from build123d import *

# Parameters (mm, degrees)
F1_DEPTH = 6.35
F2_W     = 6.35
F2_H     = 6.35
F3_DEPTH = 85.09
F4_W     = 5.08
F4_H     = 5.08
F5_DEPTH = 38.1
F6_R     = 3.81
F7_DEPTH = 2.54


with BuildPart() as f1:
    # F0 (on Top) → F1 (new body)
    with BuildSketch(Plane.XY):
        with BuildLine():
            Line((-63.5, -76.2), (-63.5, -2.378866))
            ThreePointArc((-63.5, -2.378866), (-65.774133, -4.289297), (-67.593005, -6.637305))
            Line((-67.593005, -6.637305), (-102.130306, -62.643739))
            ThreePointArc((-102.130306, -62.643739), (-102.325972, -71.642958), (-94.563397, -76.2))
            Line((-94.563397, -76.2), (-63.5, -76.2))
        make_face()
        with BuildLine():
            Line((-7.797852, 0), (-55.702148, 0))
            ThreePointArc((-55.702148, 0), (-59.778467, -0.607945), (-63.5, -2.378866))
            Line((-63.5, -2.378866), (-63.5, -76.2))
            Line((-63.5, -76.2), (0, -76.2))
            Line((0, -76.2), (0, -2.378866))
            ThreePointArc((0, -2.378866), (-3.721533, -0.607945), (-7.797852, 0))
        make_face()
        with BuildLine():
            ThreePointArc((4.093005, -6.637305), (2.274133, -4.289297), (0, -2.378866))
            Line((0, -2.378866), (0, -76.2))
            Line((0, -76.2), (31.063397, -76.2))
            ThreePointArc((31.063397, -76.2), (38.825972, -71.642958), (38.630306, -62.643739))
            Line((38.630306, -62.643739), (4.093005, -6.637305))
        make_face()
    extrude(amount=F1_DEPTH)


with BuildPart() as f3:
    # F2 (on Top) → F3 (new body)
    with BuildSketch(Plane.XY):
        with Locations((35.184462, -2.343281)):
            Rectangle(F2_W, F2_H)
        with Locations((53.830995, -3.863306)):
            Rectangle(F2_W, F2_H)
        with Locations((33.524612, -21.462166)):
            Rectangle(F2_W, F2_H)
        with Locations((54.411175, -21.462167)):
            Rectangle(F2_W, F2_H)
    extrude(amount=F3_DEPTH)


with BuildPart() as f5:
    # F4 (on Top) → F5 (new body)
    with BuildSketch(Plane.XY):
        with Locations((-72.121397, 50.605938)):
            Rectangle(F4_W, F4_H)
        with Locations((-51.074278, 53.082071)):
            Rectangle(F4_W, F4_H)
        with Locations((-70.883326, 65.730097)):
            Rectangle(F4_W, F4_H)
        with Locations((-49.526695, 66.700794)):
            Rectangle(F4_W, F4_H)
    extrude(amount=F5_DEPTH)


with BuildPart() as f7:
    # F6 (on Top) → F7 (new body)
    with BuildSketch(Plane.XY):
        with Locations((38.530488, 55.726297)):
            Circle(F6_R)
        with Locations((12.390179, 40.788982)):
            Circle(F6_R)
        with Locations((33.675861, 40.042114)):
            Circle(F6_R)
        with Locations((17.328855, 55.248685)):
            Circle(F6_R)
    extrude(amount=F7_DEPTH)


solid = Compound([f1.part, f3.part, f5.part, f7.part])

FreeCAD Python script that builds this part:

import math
import FreeCAD as App
import Part
import Sketcher
Q = App.Units.Quantity

doc = App.newDocument("Part")
body = doc.addObject("PartDesign::Body", "Body")

# Sketch on XY plane
sketch1 = body.newObject("Sketcher::SketchObject", "Sketch")
sketch1.AttachmentSupport = (doc.getObject("XY_Plane"), [""])
sketch1.MapMode = "FlatFace"
sketch1.addGeometry(Part.ArcOfCircle(Part.Circle(App.Vector(-56, -14, 0), App.Vector(0, 0, 1), 14), math.radians(124), math.radians(148)), False)
sketch1.addGeometry(Part.LineSegment(App.Vector(-68, -7, 0), App.Vector(-102, -63, 0)), False)
sketch1.addGeometry(Part.ArcOfCircle(Part.Circle(App.Vector(-95, -67, 0), App.Vector(0, 0, 1), 9), math.radians(148), math.radians(270)), False)
sketch1.addGeometry(Part.LineSegment(App.Vector(-95, -76, 0), App.Vector(31, -76, 0)), False)
sketch1.addGeometry(Part.ArcOfCircle(Part.Circle(App.Vector(31, -67, 0), App.Vector(0, 0, 1), 9), math.radians(-90), math.radians(32)), False)
sketch1.addGeometry(Part.LineSegment(App.Vector(39, -63, 0), App.Vector(4, -7, 0)), False)
sketch1.addGeometry(Part.ArcOfCircle(Part.Circle(App.Vector(-8, -14, 0), App.Vector(0, 0, 1), 14), math.radians(32), math.radians(56)), False)
sketch1.addGeometry(Part.ArcOfCircle(Part.Circle(App.Vector(-8, -14, 0), App.Vector(0, 0, 1), 14), math.radians(56), math.radians(90)), False)
sketch1.addGeometry(Part.LineSegment(App.Vector(-8, 0, 0), App.Vector(-56, 0, 0)), False)
sketch1.addGeometry(Part.ArcOfCircle(Part.Circle(App.Vector(-56, -14, 0), App.Vector(0, 0, 1), 14), math.radians(90), math.radians(124)), False)
sketch1.addConstraint(Sketcher.Constraint("Tangent", 0, 2, 1, 1))
sketch1.addConstraint(Sketcher.Constraint("Tangent", 1, 2, 2, 1))
sketch1.addConstraint(Sketcher.Constraint("Tangent", 2, 2, 3, 1))
sketch1.addConstraint(Sketcher.Constraint("Tangent", 3, 2, 4, 1))
sketch1.addConstraint(Sketcher.Constraint("Tangent", 4, 2, 5, 1))
sketch1.addConstraint(Sketcher.Constraint("Tangent", 5, 2, 6, 1))
sketch1.addConstraint(Sketcher.Constraint("Tangent", 6, 2, 7, 1))
sketch1.addConstraint(Sketcher.Constraint("Tangent", 7, 2, 8, 1))
sketch1.addConstraint(Sketcher.Constraint("Tangent", 8, 2, 9, 1))
sketch1.addConstraint(Sketcher.Constraint("Tangent", 9, 2, 0, 1))
sketch1.addConstraint(Sketcher.Constraint("Horizontal", 3))
sketch1.addConstraint(Sketcher.Constraint("Horizontal", 8))
sketch1.addConstraint(Sketcher.Constraint("Equal", 2, 4))
sketch1.addConstraint(Sketcher.Constraint("Equal", 0, 6))
sketch1.addConstraint(Sketcher.Constraint("Equal", 7, 9))
sketch1.addConstraint(Sketcher.Constraint("PointOnObject", 6, 2, -2))
sketch1.addConstraint(Sketcher.Constraint("PointOnObject", 7, 2, -1))
sketch1.addConstraint(Sketcher.Constraint("Horizontal", 1, 2, 4, 2))
sketch1.addConstraint(Sketcher.Constraint("Horizontal", 6, 2, 9, 2))
sketch1.addConstraint(Sketcher.Constraint("Radius", 0, Q("0.5499998 in")))
sketch1.addConstraint(Sketcher.Constraint("Radius", 2, Q("0.35 in")))
sketch1.addConstraint(Sketcher.Constraint("Radius", 7, Q("0.55 in")))
sketch1.addConstraint(Sketcher.Constraint("DistanceY", 2, 2, -1, 1, Q("3 in")))
sketch1.addConstraint(Sketcher.Constraint("DistanceX", 9, 2, -1, 1, Q("2.5 in")))
sketch1.addConstraint(Sketcher.Constraint("DistanceX", 0, 3, 7, 3, Q("47.904299 mm")))
sketch1.addConstraint(Sketcher.Constraint("DistanceX", 1, 2, 0, 2, Q("34.537301 mm")))
pad1 = body.newObject("PartDesign::Pad", "Pad")
pad1.Profile = sketch1
pad1.Length = Q("0.25 in")
body2 = doc.addObject("PartDesign::Body", "Body001")
body2.AllowCompound = True

# Sketch on XY plane
sketch2 = body2.newObject("Sketcher::SketchObject", "Sketch001")
sketch2.AttachmentSupport = (doc.getObject("XY_Plane001"), [""])
sketch2.MapMode = "FlatFace"
sketch2.addGeometry(Part.LineSegment(App.Vector(32, 1, 0), App.Vector(32, -6, 0)), False)
sketch2.addGeometry(Part.LineSegment(App.Vector(32, -6, 0), App.Vector(38, -6, 0)), False)
sketch2.addGeometry(Part.LineSegment(App.Vector(38, -6, 0), App.Vector(38, 1, 0)), False)
sketch2.addGeometry(Part.LineSegment(App.Vector(38, 1, 0), App.Vector(32, 1, 0)), False)
sketch2.addGeometry(Part.LineSegment(App.Vector(51, -1, 0), App.Vector(51, -7, 0)), False)
sketch2.addGeometry(Part.LineSegment(App.Vector(51, -7, 0), App.Vector(57, -7, 0)), False)
sketch2.addGeometry(Part.LineSegment(App.Vector(57, -7, 0), App.Vector(57, -1, 0)), False)
sketch2.addGeometry(Part.LineSegment(App.Vector(57, -1, 0), App.Vector(51, -1, 0)), False)
sketch2.addGeometry(Part.LineSegment(App.Vector(30, -18, 0), App.Vector(30, -25, 0)), False)
sketch2.addGeometry(Part.LineSegment(App.Vector(30, -25, 0), App.Vector(37, -25, 0)), False)
sketch2.addGeometry(Part.LineSegment(App.Vector(37, -25, 0), App.Vector(37, -18, 0)), False)
sketch2.addGeometry(Part.LineSegment(App.Vector(37, -18, 0), App.Vector(30, -18, 0)), False)
sketch2.addGeometry(Part.LineSegment(App.Vector(51, -18, 0), App.Vector(51, -25, 0)), False)
sketch2.addGeometry(Part.LineSegment(App.Vector(51, -25, 0), App.Vector(58, -25, 0)), False)
sketch2.addGeometry(Part.LineSegment(App.Vector(58, -25, 0), App.Vector(58, -18, 0)), False)
sketch2.addGeometry(Part.LineSegment(App.Vector(58, -18, 0), App.Vector(51, -18, 0)), False)
sketch2.addConstraint(Sketcher.Constraint("Coincident", 0, 2, 1, 1))
sketch2.addConstraint(Sketcher.Constraint("Coincident", 1, 2, 2, 1))
sketch2.addConstraint(Sketcher.Constraint("Coincident", 2, 2, 3, 1))
sketch2.addConstraint(Sketcher.Constraint("Coincident", 3, 2, 0, 1))
sketch2.addConstraint(Sketcher.Constraint("Coincident", 4, 2, 5, 1))
sketch2.addConstraint(Sketcher.Constraint("Coincident", 5, 2, 6, 1))
sketch2.addConstraint(Sketcher.Constraint("Coincident", 6, 2, 7, 1))
sketch2.addConstraint(Sketcher.Constraint("Coincident", 7, 2, 4, 1))
sketch2.addConstraint(Sketcher.Constraint("Coincident", 8, 2, 9, 1))
sketch2.addConstraint(Sketcher.Constraint("Coincident", 9, 2, 10, 1))
sketch2.addConstraint(Sketcher.Constraint("Coincident", 10, 2, 11, 1))
sketch2.addConstraint(Sketcher.Constraint("Coincident", 11, 2, 8, 1))
sketch2.addConstraint(Sketcher.Constraint("Coincident", 12, 2, 13, 1))
sketch2.addConstraint(Sketcher.Constraint("Coincident", 13, 2, 14, 1))
sketch2.addConstraint(Sketcher.Constraint("Coincident", 14, 2, 15, 1))
sketch2.addConstraint(Sketcher.Constraint("Coincident", 15, 2, 12, 1))
sketch2.addConstraint(Sketcher.Constraint("Vertical", 0))
sketch2.addConstraint(Sketcher.Constraint("Horizontal", 1))
sketch2.addConstraint(Sketcher.Constraint("Vertical", 2))
sketch2.addConstraint(Sketcher.Constraint("Horizontal", 3))
sketch2.addConstraint(Sketcher.Constraint("Vertical", 4))
sketch2.addConstraint(Sketcher.Constraint("Horizontal", 5))
sketch2.addConstraint(Sketcher.Constraint("Vertical", 6))
sketch2.addConstraint(Sketcher.Constraint("Horizontal", 7))
sketch2.addConstraint(Sketcher.Constraint("Vertical", 8))
sketch2.addConstraint(Sketcher.Constraint("Horizontal", 9))
sketch2.addConstraint(Sketcher.Constraint("Vertical", 10))
sketch2.addConstraint(Sketcher.Constraint("Horizontal", 11))
sketch2.addConstraint(Sketcher.Constraint("Vertical", 12))
sketch2.addConstraint(Sketcher.Constraint("Horizontal", 13))
sketch2.addConstraint(Sketcher.Constraint("Vertical", 14))
sketch2.addConstraint(Sketcher.Constraint("Horizontal", 15))
sketch2.addConstraint(Sketcher.Constraint("Horizontal", 9, 2, 12, 2))
sketch2.addConstraint(Sketcher.Constraint("Horizontal", 11, 2, 14, 2))
sketch2.addConstraint(Sketcher.Constraint("Equal", 3, 5))
sketch2.addConstraint(Sketcher.Constraint("Equal", 7, 9))
sketch2.addConstraint(Sketcher.Constraint("Equal", 11, 13))
sketch2.addConstraint(Sketcher.Constraint("Equal", 15, 0))
sketch2.addConstraint(Sketcher.Constraint("Equal", 2, 4))
sketch2.addConstraint(Sketcher.Constraint("Equal", 6, 8))
sketch2.addConstraint(Sketcher.Constraint("DistanceX", 1, 1, 1, 2, Q("0.25 in")))
sketch2.addConstraint(Sketcher.Constraint("DistanceY", 0, 2, -1, 1, Q("5.518281 mm")))
sketch2.addConstraint(Sketcher.Constraint("DistanceX", 8, 2, 0, 2, Q("1.65985 mm")))
sketch2.addConstraint(Sketcher.Constraint("DistanceY", 8, 2, 4, 2, Q("17.59886 mm")))
sketch2.addConstraint(Sketcher.Constraint("DistanceX", 4, 2, 12, 2, Q("0.58018 mm")))
sketch2.addConstraint(Sketcher.Constraint("DistanceX", -1, 1, 0, 2, Q("32.009462 mm")))
sketch2.addConstraint(Sketcher.Constraint("DistanceX", -1, 1, 4, 2, Q("50.655995 mm")))
sketch2.addConstraint(Sketcher.Constraint("DistanceY", 4, 2, -1, 1, Q("7.038306 mm")))
pad2 = body2.newObject("PartDesign::Pad", "Pad001")
pad2.Profile = sketch2
pad2.Length = Q("3.35 in")
body3 = doc.addObject("PartDesign::Body", "Body002")
body3.AllowCompound = True

# Sketch on XY plane
sketch3 = body3.newObject("Sketcher::SketchObject", "Sketch002")
sketch3.AttachmentSupport = (doc.getObject("XY_Plane002"), [""])
sketch3.MapMode = "FlatFace"
sketch3.addGeometry(Part.LineSegment(App.Vector(-75, 53, 0), App.Vector(-75, 48, 0)), False)
sketch3.addGeometry(Part.LineSegment(App.Vector(-75, 48, 0), App.Vector(-70, 48, 0)), False)
sketch3.addGeometry(Part.LineSegment(App.Vector(-70, 48, 0), App.Vector(-70, 53, 0)), False)
sketch3.addGeometry(Part.LineSegment(App.Vector(-70, 53, 0), App.Vector(-75, 53, 0)), False)
sketch3.addGeometry(Part.LineSegment(App.Vector(-54, 56, 0), App.Vector(-54, 51, 0)), False)
sketch3.addGeometry(Part.LineSegment(App.Vector(-54, 51, 0), App.Vector(-49, 51, 0)), False)
sketch3.addGeometry(Part.LineSegment(App.Vector(-49, 51, 0), App.Vector(-49, 56, 0)), False)
sketch3.addGeometry(Part.LineSegment(App.Vector(-49, 56, 0), App.Vector(-54, 56, 0)), False)
sketch3.addGeometry(Part.LineSegment(App.Vector(-73, 68, 0), App.Vector(-73, 63, 0)), False)
sketch3.addGeometry(Part.LineSegment(App.Vector(-73, 63, 0), App.Vector(-68, 63, 0)), False)
sketch3.addGeometry(Part.LineSegment(App.Vector(-68, 63, 0), App.Vector(-68, 68, 0)), False)
sketch3.addGeometry(Part.LineSegment(App.Vector(-68, 68, 0), App.Vector(-73, 68, 0)), False)
sketch3.addGeometry(Part.LineSegment(App.Vector(-52, 69, 0), App.Vector(-52, 64, 0)), False)
sketch3.addGeometry(Part.LineSegment(App.Vector(-52, 64, 0), App.Vector(-47, 64, 0)), False)
sketch3.addGeometry(Part.LineSegment(App.Vector(-47, 64, 0), App.Vector(-47, 69, 0)), False)
sketch3.addGeometry(Part.LineSegment(App.Vector(-47, 69, 0), App.Vector(-52, 69, 0)), False)
sketch3.addConstraint(Sketcher.Constraint("Coincident", 0, 2, 1, 1))
sketch3.addConstraint(Sketcher.Constraint("Coincident", 1, 2, 2, 1))
sketch3.addConstraint(Sketcher.Constraint("Coincident", 2, 2, 3, 1))
sketch3.addConstraint(Sketcher.Constraint("Coincident", 3, 2, 0, 1))
sketch3.addConstraint(Sketcher.Constraint("Coincident", 4, 2, 5, 1))
sketch3.addConstraint(Sketcher.Constraint("Coincident", 5, 2, 6, 1))
sketch3.addConstraint(Sketcher.Constraint("Coincident", 6, 2, 7, 1))
sketch3.addConstraint(Sketcher.Constraint("Coincident", 7, 2, 4, 1))
sketch3.addConstraint(Sketcher.Constraint("Coincident", 8, 2, 9, 1))
sketch3.addConstraint(Sketcher.Constraint("Coincident", 9, 2, 10, 1))
sketch3.addConstraint(Sketcher.Constraint("Coincident", 10, 2, 11, 1))
sketch3.addConstraint(Sketcher.Constraint("Coincident", 11, 2, 8, 1))
sketch3.addConstraint(Sketcher.Constraint("Coincident", 12, 2, 13, 1))
sketch3.addConstraint(Sketcher.Constraint("Coincident", 13, 2, 14, 1))
sketch3.addConstraint(Sketcher.Constraint("Coincident", 14, 2, 15, 1))
sketch3.addConstraint(Sketcher.Constraint("Coincident", 15, 2, 12, 1))
sketch3.addConstraint(Sketcher.Constraint("Vertical", 0))
sketch3.addConstraint(Sketcher.Constraint("Horizontal", 1))
sketch3.addConstraint(Sketcher.Constraint("Vertical", 2))
sketch3.addConstraint(Sketcher.Constraint("Horizontal", 3))
sketch3.addConstraint(Sketcher.Constraint("Vertical", 4))
sketch3.addConstraint(Sketcher.Constraint("Horizontal", 5))
sketch3.addConstraint(Sketcher.Constraint("Vertical", 6))
sketch3.addConstraint(Sketcher.Constraint("Horizontal", 7))
sketch3.addConstraint(Sketcher.Constraint("Vertical", 8))
sketch3.addConstraint(Sketcher.Constraint("Horizontal", 9))
sketch3.addConstraint(Sketcher.Constraint("Vertical", 10))
sketch3.addConstraint(Sketcher.Constraint("Horizontal", 11))
sketch3.addConstraint(Sketcher.Constraint("Vertical", 12))
sketch3.addConstraint(Sketcher.Constraint("Horizontal", 13))
sketch3.addConstraint(Sketcher.Constraint("Vertical", 14))
sketch3.addConstraint(Sketcher.Constraint("Horizontal", 15))
sketch3.addConstraint(Sketcher.Constraint("Equal", 3, 5))
sketch3.addConstraint(Sketcher.Constraint("Equal", 7, 9))
sketch3.addConstraint(Sketcher.Constraint("Equal", 11, 13))
sketch3.addConstraint(Sketcher.Constraint("Equal", 15, 0))
sketch3.addConstraint(Sketcher.Constraint("Equal", 2, 4))
sketch3.addConstraint(Sketcher.Constraint("Equal", 6, 8))
sketch3.addConstraint(Sketcher.Constraint("Equal", 10, 12))
sketch3.addConstraint(Sketcher.Constraint("DistanceX", 1, 1, 1, 2, Q("0.2 in")))
sketch3.addConstraint(Sketcher.Constraint("DistanceY", -1, 1, 0, 2, Q("48.065938 mm")))
sketch3.addConstraint(Sketcher.Constraint("DistanceY", -1, 1, 4, 2, Q("50.542071 mm")))
sketch3.addConstraint(Sketcher.Constraint("DistanceX", 1, 2, 4, 2, Q("15.967119 mm")))
sketch3.addConstraint(Sketcher.Constraint("DistanceX", 3, 2, 8, 2, Q("1.238071 mm")))
sketch3.addConstraint(Sketcher.Constraint("DistanceY", 3, 2, 8, 2, Q("10.044159 mm")))
sketch3.addConstraint(Sketcher.Constraint("DistanceX", 9, 2, 12, 2, Q("16.276631 mm")))
sketch3.addConstraint(Sketcher.Constraint("DistanceX", 0, 2, -1, 1, Q("74.661397 mm")))
sketch3.addConstraint(Sketcher.Constraint("DistanceY", -1, 1, 12, 2, Q("64.160794 mm")))
pad3 = body3.newObject("PartDesign::Pad", "Pad002")
pad3.Profile = sketch3
pad3.Length = Q("1.5 in")
body4 = doc.addObject("PartDesign::Body", "Body003")
body4.AllowCompound = True

# Sketch on XY plane
sketch4 = body4.newObject("Sketcher::SketchObject", "Sketch003")
sketch4.AttachmentSupport = (doc.getObject("XY_Plane003"), [""])
sketch4.MapMode = "FlatFace"
sketch4.addGeometry(Part.Circle(App.Vector(38.5, 55.7, 0), App.Vector(0, 0, 1), 3.8), False)
sketch4.addGeometry(Part.Circle(App.Vector(12.4, 40.8, 0), App.Vector(0, 0, 1), 3.8), False)
sketch4.addGeometry(Part.Circle(App.Vector(33.7, 40, 0), App.Vector(0, 0, 1), 3.8), False)
sketch4.addGeometry(Part.Circle(App.Vector(17.3, 55.2, 0), App.Vector(0, 0, 1), 3.8), False)
sketch4.addConstraint(Sketcher.Constraint("Equal", 0, 1))
sketch4.addConstraint(Sketcher.Constraint("Equal", 1, 2))
sketch4.addConstraint(Sketcher.Constraint("Equal", 2, 3))
sketch4.addConstraint(Sketcher.Constraint("Diameter", 0, Q("0.3 in")))
sketch4.addConstraint(Sketcher.Constraint("DistanceX", -1, 1, 1, 3, Q("12.390179 mm")))
sketch4.addConstraint(Sketcher.Constraint("DistanceY", -1, 1, 1, 3, Q("40.788982 mm")))
sketch4.addConstraint(Sketcher.Constraint("DistanceX", -1, 1, 2, 3, Q("33.675861 mm")))
sketch4.addConstraint(Sketcher.Constraint("DistanceX", 1, 3, 0, 3, Q("26.140309 mm")))
sketch4.addConstraint(Sketcher.Constraint("DistanceY", 2, 3, 3, 3, Q("15.206571 mm")))
sketch4.addConstraint(Sketcher.Constraint("DistanceY", -1, 1, 0, 3, Q("55.726297 mm")))
sketch4.addConstraint(Sketcher.Constraint("DistanceY", -1, 1, 2, 3, Q("40.042114 mm")))
sketch4.addConstraint(Sketcher.Constraint("DistanceX", -1, 1, 3, 3, Q("17.328855 mm")))
pad4 = body4.newObject("PartDesign::Pad", "Pad003")
pad4.Profile = sketch4
pad4.Length = Q("0.1 in")

doc.recompute()
